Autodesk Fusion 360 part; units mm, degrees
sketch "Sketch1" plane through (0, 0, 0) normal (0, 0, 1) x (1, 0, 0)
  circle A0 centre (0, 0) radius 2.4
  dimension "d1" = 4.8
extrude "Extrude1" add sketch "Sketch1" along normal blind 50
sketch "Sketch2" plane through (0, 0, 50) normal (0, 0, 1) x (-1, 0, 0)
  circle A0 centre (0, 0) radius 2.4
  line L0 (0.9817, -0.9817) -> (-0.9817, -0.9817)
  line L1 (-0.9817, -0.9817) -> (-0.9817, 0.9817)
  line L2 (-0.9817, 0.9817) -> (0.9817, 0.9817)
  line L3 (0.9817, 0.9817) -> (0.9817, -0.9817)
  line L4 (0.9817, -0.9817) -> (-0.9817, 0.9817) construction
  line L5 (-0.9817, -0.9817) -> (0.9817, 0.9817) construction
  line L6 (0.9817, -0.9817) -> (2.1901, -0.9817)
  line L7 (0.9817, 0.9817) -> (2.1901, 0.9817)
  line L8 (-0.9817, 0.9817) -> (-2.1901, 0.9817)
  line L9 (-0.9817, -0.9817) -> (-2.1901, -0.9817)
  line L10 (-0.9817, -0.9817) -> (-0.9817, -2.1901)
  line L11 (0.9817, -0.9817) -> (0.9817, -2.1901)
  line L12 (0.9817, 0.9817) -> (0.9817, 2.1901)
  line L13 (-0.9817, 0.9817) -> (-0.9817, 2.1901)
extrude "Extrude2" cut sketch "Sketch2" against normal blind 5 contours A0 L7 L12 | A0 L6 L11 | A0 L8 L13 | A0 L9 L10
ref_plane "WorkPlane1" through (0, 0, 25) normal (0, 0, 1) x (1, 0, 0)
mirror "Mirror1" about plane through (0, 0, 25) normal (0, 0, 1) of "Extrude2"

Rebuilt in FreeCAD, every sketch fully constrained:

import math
import FreeCAD as App
import Part
import Sketcher
from FreeCAD import Vector
Q = App.Units.Quantity

doc = App.newDocument("Part")
body = doc.addObject("PartDesign::Body", "Body")

sketch1 = body.newObject("Sketcher::SketchObject", "Sketch")
sketch1.AttachmentSupport = (doc.getObject("XY_Plane"), [""])
sketch1.MapMode = "FlatFace"
sketch1.addGeometry(Part.Circle(Vector(0, 0, 0), Vector(0, 0, 1), 2.4), False)
sketch1.addConstraint(Sketcher.Constraint("Coincident", 0, 3, -1, 1))
sketch1.addConstraint(Sketcher.Constraint("Diameter", 0, Q("4.8 mm")))
pad1 = body.newObject("PartDesign::Pad", "Pad")
pad1.Profile = sketch1
pad1.Length = 50

sketch2 = body.newObject("Sketcher::SketchObject", "Sketch001")
sketch2.AttachmentSupport = (doc.getObject("XY_Plane"), [""])
sketch2.MapMode = "FlatFace"
sketch2.AttachmentOffset = App.Placement(Vector(0, 0, 50), App.Rotation())
sketch2.addGeometry(Part.LineSegment(Vector(-1, -1, 0), Vector(-2.2, -1, 0)), False)
sketch2.addGeometry(Part.ArcOfCircle(Part.Circle(Vector(0, 0, 0), Vector(0, 0, 1), 2.4), math.radians(-156), math.radians(-114)), False)
sketch2.addGeometry(Part.LineSegment(Vector(-1, -2.2, 0), Vector(-1, -1, 0)), False)
sketch2.addGeometry(Part.ArcOfCircle(Part.Circle(Vector(0, 0, 0), Vector(0, 0, 1), 2.4), math.radians(114), math.radians(156)), False)
sketch2.addGeometry(Part.LineSegment(Vector(-2.2, 1, 0), Vector(-1, 1, 0)), False)
sketch2.addGeometry(Part.LineSegment(Vector(-1, 1, 0), Vector(-1, 2.2, 0)), False)
sketch2.addGeometry(Part.LineSegment(Vector(1, -1, 0), Vector(1, -2.2, 0)), False)
sketch2.addGeometry(Part.ArcOfCircle(Part.Circle(Vector(0, 0, 0), Vector(0, 0, 1), 2.4), math.radians(-66), math.radians(-24)), False)
sketch2.addGeometry(Part.LineSegment(Vector(2.2, -1, 0), Vector(1, -1, 0)), False)
sketch2.addGeometry(Part.ArcOfCircle(Part.Circle(Vector(0, 0, 0), Vector(0, 0, 1), 2.4), math.radians(24), math.radians(66)), False)
sketch2.addGeometry(Part.LineSegment(Vector(1, 2.2, 0), Vector(1, 1, 0)), False)
sketch2.addGeometry(Part.LineSegment(Vector(1, 1, 0), Vector(2.2, 1, 0)), False)
sketch2.addConstraint(Sketcher.Constraint("Coincident", 0, 2, 1, 1))
sketch2.addConstraint(Sketcher.Constraint("Coincident", 1, 2, 2, 1))
sketch2.addConstraint(Sketcher.Constraint("Coincident", 2, 2, 0, 1))
sketch2.addConstraint(Sketcher.Constraint("Coincident", 3, 2, 4, 1))
sketch2.addConstraint(Sketcher.Constraint("Coincident", 4, 2, 5, 1))
sketch2.addConstraint(Sketcher.Constraint("Coincident", 5, 2, 3, 1))
sketch2.addConstraint(Sketcher.Constraint("Coincident", 6, 2, 7, 1))
sketch2.addConstraint(Sketcher.Constraint("Coincident", 7, 2, 8, 1))
sketch2.addConstraint(Sketcher.Constraint("Coincident", 8, 2, 6, 1))
sketch2.addConstraint(Sketcher.Constraint("Coincident", 9, 2, 10, 1))
sketch2.addConstraint(Sketcher.Constraint("Coincident", 10, 2, 11, 1))
sketch2.addConstraint(Sketcher.Constraint("Coincident", 11, 2, 9, 1))
sketch2.addConstraint(Sketcher.Constraint("Horizontal", 0))
sketch2.addConstraint(Sketcher.Constraint("Vertical", 2))
sketch2.addConstraint(Sketcher.Constraint("Horizontal", 4))
sketch2.addConstraint(Sketcher.Constraint("Vertical", 5))
sketch2.addConstraint(Sketcher.Constraint("Vertical", 6))
sketch2.addConstraint(Sketcher.Constraint("Horizontal", 8))
sketch2.addConstraint(Sketcher.Constraint("Vertical", 10))
sketch2.addConstraint(Sketcher.Constraint("Horizontal", 11))
sketch2.addConstraint(Sketcher.Constraint("Coincident", 1, 3, -1, 1))
sketch2.addConstraint(Sketcher.Constraint("Coincident", 3, 3, -1, 1))
sketch2.addConstraint(Sketcher.Constraint("Coincident", 7, 3, -1, 1))
sketch2.addConstraint(Sketcher.Constraint("Coincident", 9, 3, -1, 1))
sketch2.addConstraint(Sketcher.Constraint("Equal", 1, 3))
sketch2.addConstraint(Sketcher.Constraint("Equal", 3, 7))
sketch2.addConstraint(Sketcher.Constraint("Equal", 7, 9))
sketch2.addConstraint(Sketcher.Constraint("Symmetric", 4, 2, 8, 2, -1, 1))
sketch2.addConstraint(Sketcher.Constraint("Symmetric", 2, 2, 10, 2, -1, 1))
sketch2.addConstraint(Sketcher.Constraint("Symmetric", 2, 2, 8, 2, -2))
sketch2.addConstraint(Sketcher.Constraint("Equal", 11, 2))
sketch2.addConstraint(Sketcher.Constraint("Radius", 1, Q("2.4 mm")))
sketch2.addConstraint(Sketcher.Constraint("DistanceX", 0, 2, -1, 1, Q("2.19 mm")))
pocket1 = body.newObject("PartDesign::Pocket", "Pocket")
pocket1.Profile = sketch2
pocket1.Length = 5
doc.recompute()

datumplane = body.newObject("PartDesign::Plane", "DatumPlane")
datumplane.AttachmentSupport = (doc.getObject("XY_Plane"), [""])
datumplane.MapMode = "FlatFace"
datumplane.AttachmentOffset = App.Placement(Vector(0, 0, 25), App.Rotation())
mirrored = body.newObject("PartDesign::Mirrored", "Mirrored")
mirrored.Originals = [pocket1]
mirrored.MirrorPlane = (datumplane, [""])
body.Tip = mirrored

doc.recompute()
